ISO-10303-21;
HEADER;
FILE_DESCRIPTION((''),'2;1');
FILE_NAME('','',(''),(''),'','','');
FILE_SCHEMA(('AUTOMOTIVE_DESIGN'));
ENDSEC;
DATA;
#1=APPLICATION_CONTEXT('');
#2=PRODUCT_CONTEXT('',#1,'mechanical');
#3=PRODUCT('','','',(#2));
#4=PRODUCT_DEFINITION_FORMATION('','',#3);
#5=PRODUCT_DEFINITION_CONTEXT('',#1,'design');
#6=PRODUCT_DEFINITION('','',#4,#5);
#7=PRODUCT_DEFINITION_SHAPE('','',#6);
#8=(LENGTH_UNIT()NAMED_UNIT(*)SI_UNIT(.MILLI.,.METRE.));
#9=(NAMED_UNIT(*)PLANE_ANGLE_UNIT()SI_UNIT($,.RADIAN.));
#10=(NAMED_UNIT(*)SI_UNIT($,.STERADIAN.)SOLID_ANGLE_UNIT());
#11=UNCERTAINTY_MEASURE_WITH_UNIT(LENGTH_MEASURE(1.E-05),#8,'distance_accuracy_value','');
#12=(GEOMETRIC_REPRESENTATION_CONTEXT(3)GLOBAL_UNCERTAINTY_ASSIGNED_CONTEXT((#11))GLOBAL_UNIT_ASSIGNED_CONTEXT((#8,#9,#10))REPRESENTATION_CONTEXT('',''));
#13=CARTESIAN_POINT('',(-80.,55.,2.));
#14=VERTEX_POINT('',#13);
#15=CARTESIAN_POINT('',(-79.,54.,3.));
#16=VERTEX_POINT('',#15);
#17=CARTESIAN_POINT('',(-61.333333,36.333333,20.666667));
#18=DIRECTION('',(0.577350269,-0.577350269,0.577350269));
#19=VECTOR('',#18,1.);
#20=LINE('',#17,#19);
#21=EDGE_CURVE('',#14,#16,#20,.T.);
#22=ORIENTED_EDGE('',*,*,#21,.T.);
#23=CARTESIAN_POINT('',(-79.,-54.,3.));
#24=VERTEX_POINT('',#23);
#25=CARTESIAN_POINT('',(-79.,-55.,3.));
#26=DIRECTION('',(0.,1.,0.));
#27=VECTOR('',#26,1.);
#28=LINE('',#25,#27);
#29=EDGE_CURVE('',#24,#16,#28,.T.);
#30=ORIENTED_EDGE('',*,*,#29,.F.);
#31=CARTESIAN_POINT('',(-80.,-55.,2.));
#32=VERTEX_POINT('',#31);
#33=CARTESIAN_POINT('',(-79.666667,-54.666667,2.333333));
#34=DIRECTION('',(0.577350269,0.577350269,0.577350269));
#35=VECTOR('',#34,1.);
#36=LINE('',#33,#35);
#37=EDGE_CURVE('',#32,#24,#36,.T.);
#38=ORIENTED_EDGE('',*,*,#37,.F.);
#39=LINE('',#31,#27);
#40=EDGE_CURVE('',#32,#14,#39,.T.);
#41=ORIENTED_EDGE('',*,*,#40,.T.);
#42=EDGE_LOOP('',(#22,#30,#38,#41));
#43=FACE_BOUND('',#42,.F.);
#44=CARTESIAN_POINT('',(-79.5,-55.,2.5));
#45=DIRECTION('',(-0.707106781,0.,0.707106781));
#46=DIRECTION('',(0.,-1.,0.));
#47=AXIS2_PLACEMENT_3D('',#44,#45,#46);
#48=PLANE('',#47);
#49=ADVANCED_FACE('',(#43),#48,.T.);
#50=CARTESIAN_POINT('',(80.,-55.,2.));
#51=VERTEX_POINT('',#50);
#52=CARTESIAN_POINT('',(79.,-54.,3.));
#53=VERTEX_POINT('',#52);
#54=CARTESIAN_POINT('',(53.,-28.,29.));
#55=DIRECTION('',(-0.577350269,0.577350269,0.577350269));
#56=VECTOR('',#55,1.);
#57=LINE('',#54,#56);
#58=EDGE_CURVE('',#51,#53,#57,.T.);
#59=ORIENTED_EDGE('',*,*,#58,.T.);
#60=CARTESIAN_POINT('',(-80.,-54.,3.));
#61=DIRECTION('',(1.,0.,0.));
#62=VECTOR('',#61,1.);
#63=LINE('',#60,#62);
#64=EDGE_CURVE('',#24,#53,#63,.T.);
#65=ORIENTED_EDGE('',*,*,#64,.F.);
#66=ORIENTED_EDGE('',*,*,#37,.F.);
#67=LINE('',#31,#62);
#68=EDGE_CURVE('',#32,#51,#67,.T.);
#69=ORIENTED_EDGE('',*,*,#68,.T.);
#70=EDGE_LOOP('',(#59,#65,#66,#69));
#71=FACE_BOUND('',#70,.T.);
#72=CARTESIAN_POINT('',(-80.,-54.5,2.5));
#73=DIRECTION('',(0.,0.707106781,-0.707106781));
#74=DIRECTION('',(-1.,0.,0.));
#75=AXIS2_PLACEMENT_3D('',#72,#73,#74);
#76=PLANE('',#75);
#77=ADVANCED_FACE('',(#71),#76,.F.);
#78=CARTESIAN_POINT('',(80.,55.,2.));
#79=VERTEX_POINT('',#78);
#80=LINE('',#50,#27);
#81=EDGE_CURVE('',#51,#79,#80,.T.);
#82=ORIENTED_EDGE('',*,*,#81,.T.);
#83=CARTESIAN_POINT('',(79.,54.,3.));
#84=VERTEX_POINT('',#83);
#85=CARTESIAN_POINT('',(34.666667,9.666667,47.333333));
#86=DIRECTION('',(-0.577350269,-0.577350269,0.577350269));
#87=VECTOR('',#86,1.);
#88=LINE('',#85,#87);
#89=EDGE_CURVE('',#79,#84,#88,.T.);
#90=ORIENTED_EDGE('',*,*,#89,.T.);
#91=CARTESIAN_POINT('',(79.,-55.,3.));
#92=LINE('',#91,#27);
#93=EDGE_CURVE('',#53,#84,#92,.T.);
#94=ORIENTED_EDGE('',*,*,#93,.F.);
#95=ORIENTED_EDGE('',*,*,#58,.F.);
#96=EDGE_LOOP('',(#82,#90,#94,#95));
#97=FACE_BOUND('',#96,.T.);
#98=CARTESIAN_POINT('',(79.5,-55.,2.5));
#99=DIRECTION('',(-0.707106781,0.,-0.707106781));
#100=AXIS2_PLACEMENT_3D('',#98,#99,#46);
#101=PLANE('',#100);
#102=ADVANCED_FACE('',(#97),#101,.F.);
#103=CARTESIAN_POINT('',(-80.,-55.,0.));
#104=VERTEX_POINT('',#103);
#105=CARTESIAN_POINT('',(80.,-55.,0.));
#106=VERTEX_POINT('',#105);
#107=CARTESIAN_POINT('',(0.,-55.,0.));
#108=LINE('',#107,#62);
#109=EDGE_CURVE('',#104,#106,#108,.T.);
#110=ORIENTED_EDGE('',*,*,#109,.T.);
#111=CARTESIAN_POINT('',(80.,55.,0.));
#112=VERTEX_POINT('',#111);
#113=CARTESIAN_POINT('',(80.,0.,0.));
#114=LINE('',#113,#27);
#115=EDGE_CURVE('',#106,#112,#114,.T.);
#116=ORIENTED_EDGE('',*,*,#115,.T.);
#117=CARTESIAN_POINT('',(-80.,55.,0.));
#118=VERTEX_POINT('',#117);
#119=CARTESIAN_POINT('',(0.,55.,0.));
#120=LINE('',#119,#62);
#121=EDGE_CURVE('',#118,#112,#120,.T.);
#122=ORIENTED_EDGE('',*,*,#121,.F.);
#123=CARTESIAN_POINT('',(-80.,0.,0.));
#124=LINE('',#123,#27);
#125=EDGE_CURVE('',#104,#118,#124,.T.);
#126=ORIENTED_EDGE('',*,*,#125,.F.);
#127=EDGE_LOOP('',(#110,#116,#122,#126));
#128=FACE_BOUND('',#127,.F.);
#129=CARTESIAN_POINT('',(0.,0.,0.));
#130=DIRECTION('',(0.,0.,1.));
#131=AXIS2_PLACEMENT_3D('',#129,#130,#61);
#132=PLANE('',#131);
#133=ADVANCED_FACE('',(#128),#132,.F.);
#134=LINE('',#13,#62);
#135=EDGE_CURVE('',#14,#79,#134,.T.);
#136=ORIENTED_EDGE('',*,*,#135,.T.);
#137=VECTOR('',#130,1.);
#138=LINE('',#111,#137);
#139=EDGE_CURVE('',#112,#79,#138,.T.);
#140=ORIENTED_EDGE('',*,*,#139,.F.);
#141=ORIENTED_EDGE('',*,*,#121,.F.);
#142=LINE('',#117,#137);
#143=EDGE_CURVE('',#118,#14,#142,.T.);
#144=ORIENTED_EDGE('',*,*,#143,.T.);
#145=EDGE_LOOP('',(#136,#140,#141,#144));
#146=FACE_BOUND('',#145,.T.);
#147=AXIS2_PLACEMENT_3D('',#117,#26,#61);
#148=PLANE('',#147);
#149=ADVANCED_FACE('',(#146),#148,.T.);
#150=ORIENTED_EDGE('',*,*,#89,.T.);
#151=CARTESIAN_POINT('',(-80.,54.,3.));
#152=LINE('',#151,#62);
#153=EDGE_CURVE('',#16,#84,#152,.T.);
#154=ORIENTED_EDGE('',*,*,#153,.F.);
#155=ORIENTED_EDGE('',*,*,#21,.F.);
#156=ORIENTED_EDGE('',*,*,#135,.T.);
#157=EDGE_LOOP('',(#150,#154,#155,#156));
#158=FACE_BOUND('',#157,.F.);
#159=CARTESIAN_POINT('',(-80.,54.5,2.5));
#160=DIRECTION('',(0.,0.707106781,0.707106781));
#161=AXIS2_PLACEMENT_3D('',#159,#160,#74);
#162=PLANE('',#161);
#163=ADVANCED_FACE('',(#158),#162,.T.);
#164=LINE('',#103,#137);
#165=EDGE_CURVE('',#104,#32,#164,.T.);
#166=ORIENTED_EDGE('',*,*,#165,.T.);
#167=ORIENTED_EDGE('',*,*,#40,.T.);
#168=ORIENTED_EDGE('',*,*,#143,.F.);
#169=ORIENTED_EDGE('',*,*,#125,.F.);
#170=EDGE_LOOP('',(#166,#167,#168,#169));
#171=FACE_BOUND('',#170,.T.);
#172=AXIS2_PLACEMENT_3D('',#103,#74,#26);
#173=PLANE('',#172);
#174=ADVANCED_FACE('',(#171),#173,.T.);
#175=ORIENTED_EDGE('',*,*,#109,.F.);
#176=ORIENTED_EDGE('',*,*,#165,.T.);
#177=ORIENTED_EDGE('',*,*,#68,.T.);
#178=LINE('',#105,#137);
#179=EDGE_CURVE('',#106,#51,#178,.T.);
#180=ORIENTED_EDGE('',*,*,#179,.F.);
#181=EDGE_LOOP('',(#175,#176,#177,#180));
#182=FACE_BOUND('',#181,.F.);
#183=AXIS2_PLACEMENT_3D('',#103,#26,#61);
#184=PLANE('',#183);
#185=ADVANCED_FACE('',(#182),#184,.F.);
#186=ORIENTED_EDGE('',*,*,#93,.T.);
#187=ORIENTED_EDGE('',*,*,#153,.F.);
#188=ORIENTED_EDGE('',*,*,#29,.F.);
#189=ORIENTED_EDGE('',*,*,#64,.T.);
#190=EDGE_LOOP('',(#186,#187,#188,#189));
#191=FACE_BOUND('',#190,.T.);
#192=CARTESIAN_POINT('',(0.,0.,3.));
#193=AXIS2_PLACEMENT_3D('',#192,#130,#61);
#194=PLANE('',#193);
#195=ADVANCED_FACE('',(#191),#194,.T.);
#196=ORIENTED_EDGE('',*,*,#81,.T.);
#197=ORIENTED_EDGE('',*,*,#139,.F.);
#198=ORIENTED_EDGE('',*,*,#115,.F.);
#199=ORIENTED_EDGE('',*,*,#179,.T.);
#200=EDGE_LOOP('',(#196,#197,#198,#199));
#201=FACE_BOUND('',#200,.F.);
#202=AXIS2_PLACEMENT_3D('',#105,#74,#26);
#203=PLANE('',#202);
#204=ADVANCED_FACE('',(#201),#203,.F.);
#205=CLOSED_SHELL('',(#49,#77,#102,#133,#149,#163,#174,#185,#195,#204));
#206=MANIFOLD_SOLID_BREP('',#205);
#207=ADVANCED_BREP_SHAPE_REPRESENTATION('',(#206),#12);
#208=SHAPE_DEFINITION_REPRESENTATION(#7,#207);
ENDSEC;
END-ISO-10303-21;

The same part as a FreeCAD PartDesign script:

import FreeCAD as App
import Part
import Sketcher
from FreeCAD import Vector


def edges_at(feature, points):
    """Names of the edges that pass closest to the given points."""
    edges = feature.Shape.Edges
    near = lambda p: min(range(len(edges)), key=lambda i: edges[i].distToShape(Part.Vertex(*p))[0])
    return sorted({f"Edge{near(p) + 1}" for p in points})


def add_polygon(sketch, points):
    """Adds a closed chain of lines whose ends are joined by coincident constraints."""
    first, n = sketch.GeometryCount, len(points)
    for a, b in zip(points, points[1:] + points[:1]):
        sketch.addGeometry(Part.LineSegment(App.Vector(*a, 0), App.Vector(*b, 0)), False)
    for i in range(n):
        sketch.addConstraint(Sketcher.Constraint("Coincident", first + i, 2, first + (i + 1) % n, 1))

doc = App.newDocument("Part")
body = doc.addObject("PartDesign::Body", "Body")

# Sketch on XY plane
sketch1 = body.newObject("Sketcher::SketchObject", "Sketch")
sketch1.AttachmentSupport = (doc.getObject("XY_Plane"), [""])
sketch1.MapMode = "FlatFace"
add_polygon(sketch1, [(-80, 55), (-80, -55), (80, -55), (80, 55)])  # lines 0-3
sketch1.addConstraint(Sketcher.Constraint("Vertical", 0))
sketch1.addConstraint(Sketcher.Constraint("Horizontal", 1))
sketch1.addConstraint(Sketcher.Constraint("Vertical", 2))
sketch1.addConstraint(Sketcher.Constraint("Horizontal", 3))
sketch1.addConstraint(Sketcher.Constraint("Symmetric", 0, 2, 2, 2, -1, 1))
sketch1.addConstraint(Sketcher.Constraint("DistanceX", 1, 1, 1, 2, 160.0))
sketch1.addConstraint(Sketcher.Constraint("DistanceY", 0, 2, 0, 1, 110.0))
pad1 = body.newObject("PartDesign::Pad", "Pad")
pad1.Profile = sketch1
pad1.Length = 3
doc.recompute()

chamfer = body.newObject("PartDesign::Chamfer", "Chamfer")
chamfer.Base = (pad1, edges_at(pad1, [
    (-80, 0, 3),
    (0, -55, 3),
    (80, 0, 3),
    (0, 55, 3),
]))
chamfer.Size = 1

doc.recompute()
